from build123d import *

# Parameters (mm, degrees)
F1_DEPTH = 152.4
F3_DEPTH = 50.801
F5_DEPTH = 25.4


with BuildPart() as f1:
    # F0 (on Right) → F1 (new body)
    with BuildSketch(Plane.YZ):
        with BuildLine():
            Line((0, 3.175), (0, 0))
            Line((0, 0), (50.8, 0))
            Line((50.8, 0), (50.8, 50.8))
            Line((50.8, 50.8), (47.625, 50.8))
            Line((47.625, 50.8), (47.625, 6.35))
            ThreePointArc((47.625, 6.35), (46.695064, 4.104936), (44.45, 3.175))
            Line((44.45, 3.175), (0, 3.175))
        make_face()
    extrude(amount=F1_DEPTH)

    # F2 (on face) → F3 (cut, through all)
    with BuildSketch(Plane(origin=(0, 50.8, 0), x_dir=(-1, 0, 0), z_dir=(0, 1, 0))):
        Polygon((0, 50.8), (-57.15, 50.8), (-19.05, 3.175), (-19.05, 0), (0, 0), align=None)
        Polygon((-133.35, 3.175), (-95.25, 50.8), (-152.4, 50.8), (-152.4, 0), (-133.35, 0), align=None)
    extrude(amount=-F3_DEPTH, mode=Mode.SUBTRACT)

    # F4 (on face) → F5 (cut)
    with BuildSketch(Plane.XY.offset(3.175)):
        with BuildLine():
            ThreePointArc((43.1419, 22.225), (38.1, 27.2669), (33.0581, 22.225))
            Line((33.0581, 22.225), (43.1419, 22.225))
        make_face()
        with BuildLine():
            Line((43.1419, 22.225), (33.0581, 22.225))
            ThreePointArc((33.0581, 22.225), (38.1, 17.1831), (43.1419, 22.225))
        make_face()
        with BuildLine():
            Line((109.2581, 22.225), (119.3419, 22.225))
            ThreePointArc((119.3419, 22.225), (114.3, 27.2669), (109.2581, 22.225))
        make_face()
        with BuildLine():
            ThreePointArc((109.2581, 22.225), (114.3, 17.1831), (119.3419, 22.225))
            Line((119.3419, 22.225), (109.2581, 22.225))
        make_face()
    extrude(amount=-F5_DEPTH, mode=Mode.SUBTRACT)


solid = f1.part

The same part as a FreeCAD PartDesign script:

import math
import FreeCAD as App
import Part
import Sketcher
from FreeCAD import Vector
Q = App.Units.Quantity


def add_polygon(sketch, points):
    """Adds a closed chain of lines whose ends are joined by coincident constraints."""
    first, n = sketch.GeometryCount, len(points)
    for a, b in zip(points, points[1:] + points[:1]):
        sketch.addGeometry(Part.LineSegment(App.Vector(*a, 0), App.Vector(*b, 0)), False)
    for i in range(n):
        sketch.addConstraint(Sketcher.Constraint("Coincident", first + i, 2, first + (i + 1) % n, 1))

doc = App.newDocument("Part")
body = doc.addObject("PartDesign::Body", "Body")

# Sketch on YZ plane
sketch1 = body.newObject("Sketcher::SketchObject", "Sketch")
sketch1.AttachmentSupport = (doc.getObject("YZ_Plane"), [""])
sketch1.MapMode = "FlatFace"
sketch1.addGeometry([
    Part.LineSegment(Vector(0, 3.2, 0), Vector(0, 0, 0)),  # 0
    Part.LineSegment(Vector(0, 0, 0), Vector(50.8, 0, 0)),  # 1
    Part.LineSegment(Vector(50.8, 0, 0), Vector(50.8, 50.8, 0)),  # 2
    Part.LineSegment(Vector(50.8, 50.8, 0), Vector(47.6, 50.8, 0)),  # 3
    Part.LineSegment(Vector(47.6, 50.8, 0), Vector(47.6, 6.3, 0)),  # 4
    Part.ArcOfCircle(Part.Circle(Vector(44.4, 6.4, 0), Vector(0, 0, 1), 3.2), math.radians(-90), math.radians(0)),  # 5
    Part.LineSegment(Vector(44.5, 3.2, 0), Vector(0, 3.2, 0)),  # 6
], False)
sketch1.addConstraint([
    Sketcher.Constraint("Coincident", 0, 2, 1, 1),
    Sketcher.Constraint("Coincident", 1, 2, 2, 1),
    Sketcher.Constraint("Coincident", 2, 2, 3, 1),
    Sketcher.Constraint("Coincident", 3, 2, 4, 1),
    Sketcher.Constraint("Tangent", 4, 2, 5, 2),
    Sketcher.Constraint("Tangent", 5, 1, 6, 1),
    Sketcher.Constraint("Coincident", 6, 2, 0, 1),
    Sketcher.Constraint("Vertical", 0),
    Sketcher.Constraint("Horizontal", 1),
    Sketcher.Constraint("Vertical", 2),
    Sketcher.Constraint("Horizontal", 3),
    Sketcher.Constraint("Vertical", 4),
    Sketcher.Constraint("Horizontal", 6),
    Sketcher.Constraint("Coincident", 0, 2, -1, 1),
    Sketcher.Constraint("Equal", 3, 0),
    Sketcher.Constraint("Equal", 1, 2),
    Sketcher.Constraint("DistanceX", 1, 1, 1, 2, Q("2 in")),
    Sketcher.Constraint("Radius", 5, Q("0.125 in")),
    Sketcher.Constraint("DistanceX", 6, 2, 6, 1, Q("1.75 in")),
])
pad1 = body.newObject("PartDesign::Pad", "Pad")
pad1.Profile = sketch1
pad1.Length = Q("6 in")

# Sketch on XZ plane
sketch2 = body.newObject("Sketcher::SketchObject", "Sketch001")
sketch2.AttachmentSupport = (doc.getObject("XZ_Plane"), [""])
sketch2.MapMode = "FlatFace"
sketch2.AttachmentOffset = App.Placement(Vector(0, 0, -2 * 25.4), App.Rotation())
add_polygon(sketch2, [(0, 50.8), (57.1, 50.8), (19.1, 3.2), (19.1, 0), (0, 0)])  # lines 0-4
add_polygon(sketch2, [(133.3, 3.2), (95.2, 50.8), (152.4, 50.8), (152.4, 0), (133.3, 0)])  # lines 5-9
sketch2.addConstraint([
    Sketcher.Constraint("Horizontal", 0),
    Sketcher.Constraint("Vertical", 2),
    Sketcher.Constraint("Horizontal", 3),
    Sketcher.Constraint("Vertical", 4),
    Sketcher.Constraint("Horizontal", 6),
    Sketcher.Constraint("Vertical", 7),
    Sketcher.Constraint("Horizontal", 8),
    Sketcher.Constraint("Vertical", 9),
    Sketcher.Constraint("Coincident", 3, 2, -1, 1),
    Sketcher.Constraint("PointOnObject", 7, 2, -1),
    Sketcher.Constraint("Horizontal", 4, 2, 5, 2),
    Sketcher.Constraint("Horizontal", 1, 2, 9, 2),
    Sketcher.Constraint("Equal", 0, 6),
    Sketcher.Constraint("Equal", 3, 8),
    Sketcher.Constraint("DistanceY", 4, 1, 4, 2, Q("2 in")),
    Sketcher.Constraint("DistanceX", -1, 1, 6, 2, Q("6 in")),
    Sketcher.Constraint("DistanceX", 1, 2, 5, 2, Q("3 in")),
    Sketcher.Constraint("DistanceX", 0, 1, 0, 2, Q("2.25 in")),
    Sketcher.Constraint("DistanceY", 2, 2, 2, 1, Q("0.125 in")),
])
pocket1 = body.newObject("PartDesign::Pocket", "Pocket")
pocket1.Profile = sketch2
pocket1.Type = "ThroughAll"
pocket1.Reversed = True

# Sketch on XY plane
sketch3 = body.newObject("Sketcher::SketchObject", "Sketch002")
sketch3.AttachmentSupport = (doc.getObject("XY_Plane"), [""])
sketch3.MapMode = "FlatFace"
sketch3.AttachmentOffset = App.Placement(Vector(0, 0, 0.125 * 25.4), App.Rotation())
sketch3.addGeometry([
    Part.Circle(Vector(38, 22, 0), Vector(0, 0, 1), 5),
    Part.Circle(Vector(114, 22, 0), Vector(0, 0, 1), 5),
], False)
sketch3.addConstraint([
    Sketcher.Constraint("Equal", 0, 1),
    Sketcher.Constraint("Horizontal", 0, 3, 1, 3),
    Sketcher.Constraint("Diameter", 0, Q("0.397 in")),
    Sketcher.Constraint("DistanceX", 0, 3, 1, 3, Q("3 in")),
    Sketcher.Constraint("DistanceX", -1, 1, 0, 3, Q("1.5 in")),
    Sketcher.Constraint("DistanceY", -1, 1, 0, 3, Q("0.875 in")),
])
pocket2 = body.newObject("PartDesign::Pocket", "Pocket001")
pocket2.Profile = sketch3
pocket2.Length = Q("1 in")

doc.recompute()
